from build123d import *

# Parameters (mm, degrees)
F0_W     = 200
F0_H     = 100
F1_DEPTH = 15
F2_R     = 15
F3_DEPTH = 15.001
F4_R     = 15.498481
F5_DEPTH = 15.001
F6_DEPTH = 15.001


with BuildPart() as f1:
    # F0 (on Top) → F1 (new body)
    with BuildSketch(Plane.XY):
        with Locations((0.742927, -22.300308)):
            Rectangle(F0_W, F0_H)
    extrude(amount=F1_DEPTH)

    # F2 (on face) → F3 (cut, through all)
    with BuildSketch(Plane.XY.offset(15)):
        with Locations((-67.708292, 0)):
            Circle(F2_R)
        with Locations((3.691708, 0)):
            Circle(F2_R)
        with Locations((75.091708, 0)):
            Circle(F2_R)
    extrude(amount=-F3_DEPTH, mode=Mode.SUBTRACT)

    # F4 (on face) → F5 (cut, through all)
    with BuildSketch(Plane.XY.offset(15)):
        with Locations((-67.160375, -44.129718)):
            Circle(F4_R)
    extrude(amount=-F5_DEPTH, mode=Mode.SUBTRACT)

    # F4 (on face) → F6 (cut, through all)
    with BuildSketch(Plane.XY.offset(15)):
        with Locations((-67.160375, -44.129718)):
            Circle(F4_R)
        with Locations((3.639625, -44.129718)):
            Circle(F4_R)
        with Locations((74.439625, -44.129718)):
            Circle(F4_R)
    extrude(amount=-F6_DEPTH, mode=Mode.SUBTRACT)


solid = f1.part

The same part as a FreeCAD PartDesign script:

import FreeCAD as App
import Part
import Sketcher
Q = App.Units.Quantity

doc = App.newDocument("Part")
body = doc.addObject("PartDesign::Body", "Body")

# Sketch on XY plane
sketch1 = doc.addObject("Sketcher::SketchObject", "Sketch")
body.addObject(sketch1)
sketch1.AttachmentSupport = (doc.XY_Plane, [""])
sketch1.MapMode = "FlatFace"
sketch1.addGeometry(Part.LineSegment(App.Vector(-99.257073, 27.699692, 0), App.Vector(-99.257073, -72.300308, 0)), False)
sketch1.addGeometry(Part.LineSegment(App.Vector(-99.257073, -72.300308, 0), App.Vector(100.742927, -72.300308, 0)), False)
sketch1.addGeometry(Part.LineSegment(App.Vector(100.742927, -72.300308, 0), App.Vector(100.742927, 27.699692, 0)), False)
sketch1.addGeometry(Part.LineSegment(App.Vector(100.742927, 27.699692, 0), App.Vector(-99.257073, 27.699692, 0)), False)
sketch1.addConstraint(Sketcher.Constraint("Coincident", 0, 2, 1, 1))
sketch1.addConstraint(Sketcher.Constraint("Coincident", 1, 2, 2, 1))
sketch1.addConstraint(Sketcher.Constraint("Coincident", 2, 2, 3, 1))
sketch1.addConstraint(Sketcher.Constraint("Coincident", 3, 2, 0, 1))
sketch1.addConstraint(Sketcher.Constraint("Vertical", 0))
sketch1.addConstraint(Sketcher.Constraint("Horizontal", 1))
sketch1.addConstraint(Sketcher.Constraint("Vertical", 2))
sketch1.addConstraint(Sketcher.Constraint("Horizontal", 3))
sketch1.addConstraint(Sketcher.Constraint("DistanceX", 1, 1, 1, 2, Q("200 mm")))
sketch1.addConstraint(Sketcher.Constraint("DistanceY", 0, 2, 0, 1, Q("100 mm")))
sketch1.addConstraint(Sketcher.Constraint("DistanceY", 0, 2, -1, 1, Q("72.300308 mm")))
sketch1.addConstraint(Sketcher.Constraint("DistanceX", 0, 2, -1, 1, Q("99.257073 mm")))
pad1 = doc.addObject("PartDesign::Pad", "Pad")
body.addObject(pad1)
pad1.Profile = sketch1
pad1.Length = 15

# Sketch on XY plane
sketch2 = doc.addObject("Sketcher::SketchObject", "Sketch001")
body.addObject(sketch2)
sketch2.AttachmentSupport = (doc.XY_Plane, [""])
sketch2.MapMode = "FlatFace"
sketch2.AttachmentOffset = App.Placement(App.Vector(0, 0, 15), App.Rotation())
sketch2.addGeometry(Part.Circle(App.Vector(-67.708292, 0, 0), App.Vector(0, 0, 1), 15), False)
sketch2.addGeometry(Part.Circle(App.Vector(3.691708, 0, 0), App.Vector(0, 0, 1), 15), False)
sketch2.addGeometry(Part.Circle(App.Vector(75.091708, 0, 0), App.Vector(0, 0, 1), 15), False)
sketch2.addConstraint(Sketcher.Constraint("Equal", 0, 1))
sketch2.addConstraint(Sketcher.Constraint("Equal", 1, 2))
sketch2.addConstraint(Sketcher.Constraint("PointOnObject", 0, 3, -1))
sketch2.addConstraint(Sketcher.Constraint("PointOnObject", 1, 3, -1))
sketch2.addConstraint(Sketcher.Constraint("PointOnObject", 2, 3, -1))
sketch2.addConstraint(Sketcher.Constraint("Diameter", 0, Q("30 mm")))
sketch2.addConstraint(Sketcher.Constraint("DistanceX", 0, 3, 1, 3, Q("71.4 mm")))
sketch2.addConstraint(Sketcher.Constraint("DistanceX", 1, 3, 2, 3, Q("71.4 mm")))
sketch2.addConstraint(Sketcher.Constraint("DistanceX", 0, 3, -1, 1, Q("67.708292 mm")))
pocket1 = doc.addObject("PartDesign::Pocket", "Pocket")
body.addObject(pocket1)
pocket1.Profile = sketch2
pocket1.Type = "ThroughAll"

# Sketch on XY plane
sketch3 = doc.addObject("Sketcher::SketchObject", "Sketch002")
body.addObject(sketch3)
sketch3.AttachmentSupport = (doc.XY_Plane, [""])
sketch3.MapMode = "FlatFace"
sketch3.AttachmentOffset = App.Placement(App.Vector(0, 0, 15), App.Rotation())
sketch3.addGeometry(Part.Circle(App.Vector(-67.160375, -44.129718, 0), App.Vector(0, 0, 1), 15.498481), False)
sketch3.addConstraint(Sketcher.Constraint("Diameter", 0, Q("30.996962 mm")))
sketch3.addConstraint(Sketcher.Constraint("DistanceX", 0, 3, -1, 1, Q("67.160375 mm")))
sketch3.addConstraint(Sketcher.Constraint("DistanceY", 0, 3, -1, 1, Q("44.129718 mm")))
pocket2 = doc.addObject("PartDesign::Pocket", "Pocket001")
body.addObject(pocket2)
pocket2.Profile = sketch3
pocket2.Type = "ThroughAll"

# Sketch on XY plane
sketch4 = doc.addObject("Sketcher::SketchObject", "Sketch003")
body.addObject(sketch4)
sketch4.AttachmentSupport = (doc.XY_Plane, [""])
sketch4.MapMode = "FlatFace"
sketch4.AttachmentOffset = App.Placement(App.Vector(0, 0, 15), App.Rotation())
sketch4.addGeometry(Part.Circle(App.Vector(-67.160375, -44.129718, 0), App.Vector(0, 0, 1), 15.498481), False)
sketch4.addGeometry(Part.Circle(App.Vector(3.639625, -44.129718, 0), App.Vector(0, 0, 1), 15.498481), False)
sketch4.addGeometry(Part.Circle(App.Vector(74.439625, -44.129718, 0), App.Vector(0, 0, 1), 15.498481), False)
sketch4.addConstraint(Sketcher.Constraint("Equal", 0, 1))
sketch4.addConstraint(Sketcher.Constraint("Equal", 1, 2))
sketch4.addConstraint(Sketcher.Constraint("Horizontal", 0, 3, 1, 3))
sketch4.addConstraint(Sketcher.Constraint("Horizontal", 1, 3, 2, 3))
sketch4.addConstraint(Sketcher.Constraint("DistanceX", 0, 3, 1, 3, Q("70.8 mm")))
sketch4.addConstraint(Sketcher.Constraint("DistanceX", 1, 3, 2, 3, Q("70.8 mm")))
sketch4.addConstraint(Sketcher.Constraint("Diameter", 0, Q("30.996962 mm")))
sketch4.addConstraint(Sketcher.Constraint("DistanceX", 0, 3, -1, 1, Q("67.160375 mm")))
sketch4.addConstraint(Sketcher.Constraint("DistanceY", 0, 3, -1, 1, Q("44.129718 mm")))
pocket3 = doc.addObject("PartDesign::Pocket", "Pocket002")
body.addObject(pocket3)
pocket3.Profile = sketch4
pocket3.Type = "ThroughAll"

doc.recompute()
